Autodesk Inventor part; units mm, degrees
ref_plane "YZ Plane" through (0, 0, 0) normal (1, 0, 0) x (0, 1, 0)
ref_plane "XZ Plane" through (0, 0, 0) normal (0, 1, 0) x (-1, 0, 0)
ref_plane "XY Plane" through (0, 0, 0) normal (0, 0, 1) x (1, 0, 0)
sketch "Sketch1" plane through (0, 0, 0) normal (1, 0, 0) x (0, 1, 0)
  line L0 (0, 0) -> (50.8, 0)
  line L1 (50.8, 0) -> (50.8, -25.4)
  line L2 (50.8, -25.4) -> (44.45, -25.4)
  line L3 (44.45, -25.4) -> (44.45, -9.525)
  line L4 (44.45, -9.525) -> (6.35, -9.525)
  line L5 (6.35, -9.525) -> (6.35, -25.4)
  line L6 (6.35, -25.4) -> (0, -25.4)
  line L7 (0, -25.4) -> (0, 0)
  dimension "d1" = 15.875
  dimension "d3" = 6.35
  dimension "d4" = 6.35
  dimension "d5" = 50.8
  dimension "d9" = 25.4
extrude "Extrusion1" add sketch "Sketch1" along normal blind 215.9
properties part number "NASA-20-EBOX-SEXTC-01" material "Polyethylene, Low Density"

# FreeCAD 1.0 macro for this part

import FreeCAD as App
import Part
import Sketcher
Q = App.Units.Quantity


def add_polygon(sketch, points):
    """Adds a closed chain of lines whose ends are joined by coincident constraints."""
    first, n = sketch.GeometryCount, len(points)
    for a, b in zip(points, points[1:] + points[:1]):
        sketch.addGeometry(Part.LineSegment(App.Vector(*a, 0), App.Vector(*b, 0)), False)
    for i in range(n):
        sketch.addConstraint(Sketcher.Constraint("Coincident", first + i, 2, first + (i + 1) % n, 1))

doc = App.newDocument("Part")
body = doc.addObject("PartDesign::Body", "Body")

# Sketch on YZ plane
sketch1 = body.newObject("Sketcher::SketchObject", "Sketch")
sketch1.AttachmentSupport = (doc.getObject("YZ_Plane"), [""])
sketch1.MapMode = "FlatFace"
add_polygon(sketch1, [(51, 0), (0, 0), (0, -25), (6, -25), (6, -10), (44, -10), (44, -25), (51, -25)])  # lines 0-7
sketch1.addConstraint([
    Sketcher.Constraint("Horizontal", 0),
    Sketcher.Constraint("Vertical", 1),
    Sketcher.Constraint("Horizontal", 2),
    Sketcher.Constraint("Vertical", 3),
    Sketcher.Constraint("Horizontal", 4),
    Sketcher.Constraint("Vertical", 5),
    Sketcher.Constraint("Horizontal", 6),
    Sketcher.Constraint("Vertical", 7),
    Sketcher.Constraint("Coincident", 0, 2, -1, 1),
    Sketcher.Constraint("Horizontal", 2, 2, 5, 2),
    Sketcher.Constraint("Equal", 2, 6),
    Sketcher.Constraint("DistanceX", 0, 2, 0, 1, Q("2 in")),
    Sketcher.Constraint("DistanceY", 1, 2, 1, 1, Q("1 in")),
    Sketcher.Constraint("DistanceX", 2, 1, 2, 2, Q("0.25 in")),
    Sketcher.Constraint("DistanceY", 3, 1, 3, 2, Q("0.625 in")),
])
pad1 = body.newObject("PartDesign::Pad", "Pad")
pad1.Profile = sketch1
pad1.Length = Q("8.5 in")

doc.recompute()
